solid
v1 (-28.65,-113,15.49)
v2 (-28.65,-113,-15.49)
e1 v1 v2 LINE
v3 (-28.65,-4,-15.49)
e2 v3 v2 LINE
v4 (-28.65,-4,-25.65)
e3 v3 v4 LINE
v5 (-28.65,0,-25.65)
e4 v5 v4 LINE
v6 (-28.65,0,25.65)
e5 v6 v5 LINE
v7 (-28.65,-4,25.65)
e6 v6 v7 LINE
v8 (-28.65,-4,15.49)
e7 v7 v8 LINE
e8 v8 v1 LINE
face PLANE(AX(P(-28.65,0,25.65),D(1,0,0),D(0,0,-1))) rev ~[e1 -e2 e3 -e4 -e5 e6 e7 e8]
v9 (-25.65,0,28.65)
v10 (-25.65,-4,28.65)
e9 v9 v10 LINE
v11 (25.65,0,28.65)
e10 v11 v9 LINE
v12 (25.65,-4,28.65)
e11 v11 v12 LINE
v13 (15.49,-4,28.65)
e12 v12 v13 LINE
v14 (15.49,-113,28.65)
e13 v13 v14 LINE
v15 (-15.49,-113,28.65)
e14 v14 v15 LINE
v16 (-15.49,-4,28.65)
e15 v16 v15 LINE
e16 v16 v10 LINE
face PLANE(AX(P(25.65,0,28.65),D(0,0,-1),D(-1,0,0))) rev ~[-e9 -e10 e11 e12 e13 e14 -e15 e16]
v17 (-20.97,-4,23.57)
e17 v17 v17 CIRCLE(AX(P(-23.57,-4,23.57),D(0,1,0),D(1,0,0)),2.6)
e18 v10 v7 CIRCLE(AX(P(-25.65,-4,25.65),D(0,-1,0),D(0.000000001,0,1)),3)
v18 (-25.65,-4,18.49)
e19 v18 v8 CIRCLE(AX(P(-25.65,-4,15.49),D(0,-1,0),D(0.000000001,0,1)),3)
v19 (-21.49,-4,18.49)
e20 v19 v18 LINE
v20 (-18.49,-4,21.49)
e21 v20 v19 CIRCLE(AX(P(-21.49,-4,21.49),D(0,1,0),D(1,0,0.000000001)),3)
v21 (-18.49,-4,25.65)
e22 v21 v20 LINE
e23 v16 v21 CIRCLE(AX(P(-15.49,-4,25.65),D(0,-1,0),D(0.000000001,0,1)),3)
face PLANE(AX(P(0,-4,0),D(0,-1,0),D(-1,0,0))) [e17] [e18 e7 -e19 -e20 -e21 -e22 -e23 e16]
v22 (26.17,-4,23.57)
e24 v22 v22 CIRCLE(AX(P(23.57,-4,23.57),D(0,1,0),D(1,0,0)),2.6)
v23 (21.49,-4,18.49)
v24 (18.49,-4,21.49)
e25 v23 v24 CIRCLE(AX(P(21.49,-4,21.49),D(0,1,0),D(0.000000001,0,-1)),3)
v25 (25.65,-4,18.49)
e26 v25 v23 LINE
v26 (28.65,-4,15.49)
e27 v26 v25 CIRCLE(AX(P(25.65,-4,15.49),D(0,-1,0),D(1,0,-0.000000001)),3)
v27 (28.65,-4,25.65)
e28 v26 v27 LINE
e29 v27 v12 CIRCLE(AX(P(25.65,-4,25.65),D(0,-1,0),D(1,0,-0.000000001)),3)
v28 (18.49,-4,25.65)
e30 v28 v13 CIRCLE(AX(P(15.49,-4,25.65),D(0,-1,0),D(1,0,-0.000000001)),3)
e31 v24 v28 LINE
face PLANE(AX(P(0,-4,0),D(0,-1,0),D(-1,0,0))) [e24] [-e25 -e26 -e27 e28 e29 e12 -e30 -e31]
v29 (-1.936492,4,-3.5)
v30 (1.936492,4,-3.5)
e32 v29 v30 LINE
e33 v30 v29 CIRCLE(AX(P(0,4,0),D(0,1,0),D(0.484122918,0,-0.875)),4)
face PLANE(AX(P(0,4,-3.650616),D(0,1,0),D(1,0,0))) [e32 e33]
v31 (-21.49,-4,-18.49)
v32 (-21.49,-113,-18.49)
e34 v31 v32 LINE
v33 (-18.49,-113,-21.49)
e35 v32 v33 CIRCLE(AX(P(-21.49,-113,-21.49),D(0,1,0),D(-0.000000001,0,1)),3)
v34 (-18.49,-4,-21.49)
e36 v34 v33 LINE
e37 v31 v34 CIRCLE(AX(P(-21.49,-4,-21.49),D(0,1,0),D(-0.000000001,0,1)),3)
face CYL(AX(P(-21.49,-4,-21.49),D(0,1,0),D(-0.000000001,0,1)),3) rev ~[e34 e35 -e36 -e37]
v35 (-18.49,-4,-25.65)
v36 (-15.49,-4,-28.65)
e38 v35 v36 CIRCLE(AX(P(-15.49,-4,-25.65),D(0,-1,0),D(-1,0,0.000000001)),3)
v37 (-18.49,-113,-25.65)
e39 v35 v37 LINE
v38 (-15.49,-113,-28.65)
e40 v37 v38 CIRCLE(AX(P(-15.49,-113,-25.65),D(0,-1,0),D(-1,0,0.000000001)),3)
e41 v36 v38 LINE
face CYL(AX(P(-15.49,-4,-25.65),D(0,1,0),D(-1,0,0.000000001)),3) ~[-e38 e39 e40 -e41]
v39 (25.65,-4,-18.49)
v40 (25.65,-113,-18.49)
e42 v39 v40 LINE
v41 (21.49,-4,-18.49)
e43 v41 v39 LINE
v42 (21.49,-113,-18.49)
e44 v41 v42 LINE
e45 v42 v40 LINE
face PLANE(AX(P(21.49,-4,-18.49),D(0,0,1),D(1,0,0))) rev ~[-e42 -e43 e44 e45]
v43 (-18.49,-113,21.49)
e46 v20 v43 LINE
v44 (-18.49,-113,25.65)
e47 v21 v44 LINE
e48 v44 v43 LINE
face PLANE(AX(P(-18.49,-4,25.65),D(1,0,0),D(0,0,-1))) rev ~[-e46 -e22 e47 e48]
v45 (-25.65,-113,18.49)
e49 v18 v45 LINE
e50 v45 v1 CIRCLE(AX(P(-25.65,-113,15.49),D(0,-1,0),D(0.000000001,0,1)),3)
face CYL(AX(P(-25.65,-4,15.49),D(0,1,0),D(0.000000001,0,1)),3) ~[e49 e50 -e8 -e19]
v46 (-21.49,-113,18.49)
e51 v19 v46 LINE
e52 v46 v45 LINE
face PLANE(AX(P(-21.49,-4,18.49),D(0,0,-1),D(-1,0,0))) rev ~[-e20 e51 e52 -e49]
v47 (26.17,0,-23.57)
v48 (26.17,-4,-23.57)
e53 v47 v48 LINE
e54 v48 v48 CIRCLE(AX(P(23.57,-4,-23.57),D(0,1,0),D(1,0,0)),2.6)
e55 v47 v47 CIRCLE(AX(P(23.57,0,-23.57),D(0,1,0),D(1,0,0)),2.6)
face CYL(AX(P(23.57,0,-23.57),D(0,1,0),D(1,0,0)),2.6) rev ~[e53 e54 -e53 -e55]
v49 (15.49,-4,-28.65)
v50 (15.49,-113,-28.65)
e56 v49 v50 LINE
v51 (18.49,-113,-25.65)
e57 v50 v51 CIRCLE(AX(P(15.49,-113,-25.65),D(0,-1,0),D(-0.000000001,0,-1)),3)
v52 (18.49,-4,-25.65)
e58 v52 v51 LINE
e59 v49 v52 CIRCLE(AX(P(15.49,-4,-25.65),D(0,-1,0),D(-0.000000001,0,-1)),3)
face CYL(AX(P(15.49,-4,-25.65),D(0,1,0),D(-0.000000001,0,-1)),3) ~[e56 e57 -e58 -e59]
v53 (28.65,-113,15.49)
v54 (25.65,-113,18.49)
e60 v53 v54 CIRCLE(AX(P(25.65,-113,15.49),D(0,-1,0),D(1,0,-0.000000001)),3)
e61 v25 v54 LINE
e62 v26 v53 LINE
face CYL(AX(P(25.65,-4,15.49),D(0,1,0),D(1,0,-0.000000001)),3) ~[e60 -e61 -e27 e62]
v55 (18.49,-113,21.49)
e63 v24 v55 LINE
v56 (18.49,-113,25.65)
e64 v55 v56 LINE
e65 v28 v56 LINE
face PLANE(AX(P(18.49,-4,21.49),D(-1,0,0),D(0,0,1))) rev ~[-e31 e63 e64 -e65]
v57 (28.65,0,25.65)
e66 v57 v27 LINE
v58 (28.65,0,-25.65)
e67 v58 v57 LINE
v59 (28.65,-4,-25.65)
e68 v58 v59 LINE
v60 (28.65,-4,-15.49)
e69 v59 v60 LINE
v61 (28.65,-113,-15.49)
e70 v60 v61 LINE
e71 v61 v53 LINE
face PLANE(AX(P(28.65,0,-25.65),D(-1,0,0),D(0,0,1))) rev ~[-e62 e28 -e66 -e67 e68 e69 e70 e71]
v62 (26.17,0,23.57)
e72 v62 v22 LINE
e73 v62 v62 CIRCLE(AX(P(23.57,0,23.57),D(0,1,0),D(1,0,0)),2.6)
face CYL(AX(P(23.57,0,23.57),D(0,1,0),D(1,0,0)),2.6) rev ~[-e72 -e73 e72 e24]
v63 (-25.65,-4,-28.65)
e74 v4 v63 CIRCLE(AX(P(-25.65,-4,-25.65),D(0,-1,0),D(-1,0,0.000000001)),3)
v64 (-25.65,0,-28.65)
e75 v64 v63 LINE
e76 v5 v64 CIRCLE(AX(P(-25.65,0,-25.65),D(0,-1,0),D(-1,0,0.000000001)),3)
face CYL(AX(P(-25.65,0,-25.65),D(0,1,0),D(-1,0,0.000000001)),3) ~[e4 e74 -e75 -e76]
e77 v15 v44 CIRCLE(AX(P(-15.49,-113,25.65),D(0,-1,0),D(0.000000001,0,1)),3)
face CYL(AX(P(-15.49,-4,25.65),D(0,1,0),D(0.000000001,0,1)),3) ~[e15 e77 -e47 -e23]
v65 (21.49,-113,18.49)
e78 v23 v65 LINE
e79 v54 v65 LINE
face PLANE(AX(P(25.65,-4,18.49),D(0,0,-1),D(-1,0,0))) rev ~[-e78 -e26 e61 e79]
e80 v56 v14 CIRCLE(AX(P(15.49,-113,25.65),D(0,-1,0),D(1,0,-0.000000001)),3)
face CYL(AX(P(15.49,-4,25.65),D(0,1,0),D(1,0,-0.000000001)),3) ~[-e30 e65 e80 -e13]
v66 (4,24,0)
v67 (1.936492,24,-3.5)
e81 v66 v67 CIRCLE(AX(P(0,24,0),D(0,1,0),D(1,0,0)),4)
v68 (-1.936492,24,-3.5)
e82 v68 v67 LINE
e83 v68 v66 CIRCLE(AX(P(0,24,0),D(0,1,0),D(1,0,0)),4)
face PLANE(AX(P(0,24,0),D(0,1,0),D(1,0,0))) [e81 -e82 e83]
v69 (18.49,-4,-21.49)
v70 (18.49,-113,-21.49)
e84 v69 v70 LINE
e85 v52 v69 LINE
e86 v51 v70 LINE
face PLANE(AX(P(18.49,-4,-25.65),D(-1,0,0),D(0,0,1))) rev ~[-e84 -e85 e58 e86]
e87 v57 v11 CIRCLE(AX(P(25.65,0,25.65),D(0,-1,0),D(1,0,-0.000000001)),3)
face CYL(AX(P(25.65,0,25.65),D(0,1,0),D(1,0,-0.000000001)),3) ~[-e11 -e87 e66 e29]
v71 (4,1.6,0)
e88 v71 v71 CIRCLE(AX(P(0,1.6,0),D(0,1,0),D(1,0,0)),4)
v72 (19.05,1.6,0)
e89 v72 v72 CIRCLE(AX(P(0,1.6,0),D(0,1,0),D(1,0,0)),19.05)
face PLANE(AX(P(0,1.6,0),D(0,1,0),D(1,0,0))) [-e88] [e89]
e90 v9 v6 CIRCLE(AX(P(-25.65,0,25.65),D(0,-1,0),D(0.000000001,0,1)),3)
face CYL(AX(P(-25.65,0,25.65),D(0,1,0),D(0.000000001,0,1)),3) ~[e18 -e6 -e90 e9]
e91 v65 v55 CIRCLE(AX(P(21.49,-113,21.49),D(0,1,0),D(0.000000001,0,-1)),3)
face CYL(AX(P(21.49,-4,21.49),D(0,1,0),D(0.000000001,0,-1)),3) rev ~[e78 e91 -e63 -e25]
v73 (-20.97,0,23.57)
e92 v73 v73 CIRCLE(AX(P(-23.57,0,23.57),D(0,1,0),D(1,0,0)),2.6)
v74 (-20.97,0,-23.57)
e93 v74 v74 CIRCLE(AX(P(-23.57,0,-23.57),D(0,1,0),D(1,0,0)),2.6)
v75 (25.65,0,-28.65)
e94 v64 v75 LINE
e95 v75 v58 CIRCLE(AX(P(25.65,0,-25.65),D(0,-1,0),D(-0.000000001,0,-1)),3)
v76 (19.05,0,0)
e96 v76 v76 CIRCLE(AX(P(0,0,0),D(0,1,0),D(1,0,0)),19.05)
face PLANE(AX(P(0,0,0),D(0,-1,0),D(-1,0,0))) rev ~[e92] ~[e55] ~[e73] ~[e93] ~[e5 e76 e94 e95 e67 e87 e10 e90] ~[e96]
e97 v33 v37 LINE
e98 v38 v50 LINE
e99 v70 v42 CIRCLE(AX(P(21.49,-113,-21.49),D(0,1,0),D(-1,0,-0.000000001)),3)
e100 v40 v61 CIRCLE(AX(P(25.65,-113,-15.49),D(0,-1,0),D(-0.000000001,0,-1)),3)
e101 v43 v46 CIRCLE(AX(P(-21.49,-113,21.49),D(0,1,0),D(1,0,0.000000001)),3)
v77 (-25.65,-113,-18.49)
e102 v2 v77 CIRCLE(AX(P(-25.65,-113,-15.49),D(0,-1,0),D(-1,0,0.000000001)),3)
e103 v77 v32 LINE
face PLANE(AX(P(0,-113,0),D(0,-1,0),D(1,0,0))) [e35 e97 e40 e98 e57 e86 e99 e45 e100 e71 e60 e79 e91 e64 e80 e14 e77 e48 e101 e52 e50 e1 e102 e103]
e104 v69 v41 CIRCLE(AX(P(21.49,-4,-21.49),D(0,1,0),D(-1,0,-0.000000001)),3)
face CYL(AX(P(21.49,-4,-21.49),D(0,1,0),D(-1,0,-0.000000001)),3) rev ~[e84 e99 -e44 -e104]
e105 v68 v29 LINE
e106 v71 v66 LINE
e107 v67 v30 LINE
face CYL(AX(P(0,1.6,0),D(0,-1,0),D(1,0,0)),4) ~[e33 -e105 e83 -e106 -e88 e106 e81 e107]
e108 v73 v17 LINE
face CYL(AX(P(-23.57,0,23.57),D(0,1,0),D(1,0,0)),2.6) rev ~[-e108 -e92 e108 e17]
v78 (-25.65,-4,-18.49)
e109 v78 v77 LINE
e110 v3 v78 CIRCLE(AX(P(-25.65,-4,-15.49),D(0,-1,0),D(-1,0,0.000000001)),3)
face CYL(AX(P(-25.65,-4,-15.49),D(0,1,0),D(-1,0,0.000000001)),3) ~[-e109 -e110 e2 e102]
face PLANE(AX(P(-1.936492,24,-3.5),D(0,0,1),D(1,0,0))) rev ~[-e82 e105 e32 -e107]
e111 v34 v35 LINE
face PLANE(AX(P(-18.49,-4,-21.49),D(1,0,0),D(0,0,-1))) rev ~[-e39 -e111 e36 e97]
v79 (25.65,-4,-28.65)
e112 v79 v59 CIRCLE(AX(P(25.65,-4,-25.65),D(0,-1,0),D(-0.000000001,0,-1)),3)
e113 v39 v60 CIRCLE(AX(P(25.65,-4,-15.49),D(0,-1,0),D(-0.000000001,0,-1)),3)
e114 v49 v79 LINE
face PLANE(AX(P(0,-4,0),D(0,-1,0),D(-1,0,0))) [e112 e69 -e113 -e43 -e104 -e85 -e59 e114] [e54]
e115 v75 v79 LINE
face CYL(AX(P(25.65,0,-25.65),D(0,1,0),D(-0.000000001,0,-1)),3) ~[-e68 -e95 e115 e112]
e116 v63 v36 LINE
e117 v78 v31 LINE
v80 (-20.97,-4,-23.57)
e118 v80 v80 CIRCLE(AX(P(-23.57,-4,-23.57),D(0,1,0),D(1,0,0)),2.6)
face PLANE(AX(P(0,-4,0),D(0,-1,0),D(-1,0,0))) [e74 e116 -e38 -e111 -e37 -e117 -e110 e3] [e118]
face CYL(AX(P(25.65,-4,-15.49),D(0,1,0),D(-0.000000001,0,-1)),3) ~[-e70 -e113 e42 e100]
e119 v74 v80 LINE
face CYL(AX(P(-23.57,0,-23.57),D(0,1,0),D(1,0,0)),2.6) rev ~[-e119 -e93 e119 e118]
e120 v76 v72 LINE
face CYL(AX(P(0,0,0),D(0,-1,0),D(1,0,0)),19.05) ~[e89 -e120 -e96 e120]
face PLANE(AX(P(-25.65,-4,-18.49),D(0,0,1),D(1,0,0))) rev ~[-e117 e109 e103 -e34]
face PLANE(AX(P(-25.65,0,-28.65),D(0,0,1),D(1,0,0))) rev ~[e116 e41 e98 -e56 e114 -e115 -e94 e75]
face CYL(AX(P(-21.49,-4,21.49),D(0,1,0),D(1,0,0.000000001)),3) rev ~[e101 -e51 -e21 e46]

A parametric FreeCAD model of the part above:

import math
import FreeCAD as App
import Part
import Sketcher

V = App.Vector
Q = App.Units.Quantity

doc = App.newDocument("Part")
body = doc.addObject("PartDesign::Body", "Body")

sketch1 = body.newObject("Sketcher::SketchObject", "Sketch")
sketch1.AttachmentSupport = (doc.getObject("XZ_Plane"), [""])
sketch1.MapMode = "FlatFace"
sketch1.addGeometry([
    Part.LineSegment(V(-25.65, 28.65, 0), V(25.65, 28.65, 0)),
    Part.ArcOfCircle(Part.Circle(V(25.65, 25.65, 0), V(0, 0, 1), 3), math.radians(0), math.radians(90)),
    Part.LineSegment(V(28.65, 25.65, 0), V(28.65, -25.65, 0)),
    Part.ArcOfCircle(Part.Circle(V(25.65, -25.65, 0), V(0, 0, 1), 3), math.radians(-90), math.radians(0)),
    Part.LineSegment(V(25.65, -28.65, 0), V(-25.65, -28.65, 0)),
    Part.ArcOfCircle(Part.Circle(V(-25.65, -25.65, 0), V(0, 0, 1), 3), math.radians(180), math.radians(270)),
    Part.LineSegment(V(-28.65, -25.65, 0), V(-28.65, 25.65, 0)),
    Part.ArcOfCircle(Part.Circle(V(-25.65, 25.65, 0), V(0, 0, 1), 3), math.radians(90), math.radians(180)),
    Part.Circle(V(23.57, 23.57, 0), V(0, 0, 1), 2.6),
    Part.Circle(V(-23.57, 23.57, 0), V(0, 0, 1), 2.6),
    Part.Circle(V(23.57, -23.57, 0), V(0, 0, 1), 2.6),
    Part.Circle(V(-23.57, -23.57, 0), V(0, 0, 1), 2.6),
], False)
sketch1.addConstraint([
    Sketcher.Constraint("Tangent", 0, 2, 1, 2),
    Sketcher.Constraint("Tangent", 1, 1, 2, 1),
    Sketcher.Constraint("Tangent", 2, 2, 3, 2),
    Sketcher.Constraint("Tangent", 3, 1, 4, 1),
    Sketcher.Constraint("Tangent", 4, 2, 5, 2),
    Sketcher.Constraint("Tangent", 5, 1, 6, 1),
    Sketcher.Constraint("Tangent", 6, 2, 7, 2),
    Sketcher.Constraint("Tangent", 7, 1, 0, 1),
    Sketcher.Constraint("Horizontal", 0),
    Sketcher.Constraint("Vertical", 2),
    Sketcher.Constraint("Horizontal", 4),
    Sketcher.Constraint("Vertical", 6),
    Sketcher.Constraint("Equal", 1, 3),
    Sketcher.Constraint("Equal", 3, 5),
    Sketcher.Constraint("Equal", 5, 7),
    Sketcher.Constraint("Equal", 8, 9),
    Sketcher.Constraint("Equal", 9, 10),
    Sketcher.Constraint("Equal", 10, 11),
    Sketcher.Constraint("Symmetric", 1, 3, 5, 3, -1, 1),
    Sketcher.Constraint("Symmetric", 9, 3, 10, 3, -1, 1),
    Sketcher.Constraint("Symmetric", 8, 3, 11, 3, -1, 1),
    Sketcher.Constraint("Symmetric", 8, 3, 9, 3, -2),
    Sketcher.Constraint("Equal", 4, 2),
    Sketcher.Constraint("Radius", 1, Q("3 mm")),
    Sketcher.Constraint("Diameter", 8, Q("5.2 mm")),
    Sketcher.Constraint("DistanceX", 0, 1, 0, 2, Q("51.3 mm")),
    Sketcher.Constraint("DistanceX", -1, 1, 8, 3, Q("23.57 mm")),
    Sketcher.Constraint("DistanceY", -1, 1, 8, 3, Q("23.57 mm")),
])
pad1 = body.newObject("PartDesign::Pad", "Pad")
pad1.Profile = sketch1
pad1.Length = 4

sketch2 = body.newObject("Sketcher::SketchObject", "Sketch001")
sketch2.AttachmentSupport = (doc.getObject("XZ_Plane"), [""])
sketch2.MapMode = "FlatFace"
sketch2.addGeometry(Part.Circle(V(0, 0, 0), V(0, 0, 1), 19.05), False)
sketch2.addConstraint([
    Sketcher.Constraint("Coincident", 0, 3, -1, 1),
    Sketcher.Constraint("Diameter", 0, Q("38.1 mm")),
])
pad2 = body.newObject("PartDesign::Pad", "Pad001")
pad2.Profile = sketch2
pad2.Length = 1.6
pad2.Reversed = True

sketch3 = body.newObject("Sketcher::SketchObject", "Sketch002")
sketch3.AttachmentSupport = (doc.getObject("XZ_Plane"), [""])
sketch3.MapMode = "FlatFace"
sketch3.AttachmentOffset = App.Placement(V(0, 0, -1.6), App.Rotation())
sketch3.addGeometry(Part.Circle(V(0, 0, 0), V(0, 0, 1), 4), False)
sketch3.addConstraint([
    Sketcher.Constraint("Coincident", 0, 3, -1, 1),
    Sketcher.Constraint("Diameter", 0, Q("8 mm")),
])
pad3 = body.newObject("PartDesign::Pad", "Pad002")
pad3.Profile = sketch3
pad3.Length = 22.4
pad3.Reversed = True

sketch4 = body.newObject("Sketcher::SketchObject", "Sketch003")
sketch4.AttachmentSupport = (doc.getObject("XZ_Plane"), [""])
sketch4.MapMode = "FlatFace"
sketch4.AttachmentOffset = App.Placement(V(0, 0, -24), App.Rotation())
sketch4.addGeometry([
    Part.LineSegment(V(-1.936492, -3.5, 0), V(1.936492, -3.5, 0)),
    Part.ArcOfCircle(Part.Circle(V(0, 0, 0), V(0, 0, 1), 4), math.radians(-118.955024), math.radians(-61.044976)),
], False)
sketch4.addConstraint([
    Sketcher.Constraint("Coincident", 0, 1, 1, 1),
    Sketcher.Constraint("Coincident", 1, 2, 0, 2),
    Sketcher.Constraint("Horizontal", 0),
    Sketcher.Constraint("Coincident", 1, 3, -1, 1),
    Sketcher.Constraint("Radius", 1, Q("4 mm")),
    Sketcher.Constraint("DistanceY", 0, 1, -1, 1, Q("3.5 mm")),
])
pocket1 = body.newObject("PartDesign::Pocket", "Pocket")
pocket1.Profile = sketch4
pocket1.Length = 20
pocket1.Reversed = True

sketch5 = body.newObject("Sketcher::SketchObject", "Sketch004")
sketch5.AttachmentSupport = (doc.getObject("XZ_Plane"), [""])
sketch5.MapMode = "FlatFace"
sketch5.AttachmentOffset = App.Placement(V(0, 0, 4), App.Rotation())
sketch5.addGeometry([
    Part.LineSegment(V(-18.49, 25.65, 0), V(-18.49, 21.49, 0)),
    Part.ArcOfCircle(Part.Circle(V(-21.49, 21.49, 0), V(0, 0, 1), 3), math.radians(-90), math.radians(0)),
    Part.LineSegment(V(-21.49, 18.49, 0), V(-25.65, 18.49, 0)),
    Part.ArcOfCircle(Part.Circle(V(-25.65, 15.49, 0), V(0, 0, 1), 3), math.radians(90), math.radians(180)),
    Part.LineSegment(V(-28.65, 15.49, 0), V(-28.65, -15.49, 0)),
    Part.ArcOfCircle(Part.Circle(V(-25.65, -15.49, 0), V(0, 0, 1), 3), math.radians(180), math.radians(270)),
    Part.LineSegment(V(-25.65, -18.49, 0), V(-21.49, -18.49, 0)),
    Part.ArcOfCircle(Part.Circle(V(-21.49, -21.49, 0), V(0, 0, 1), 3), math.radians(0), math.radians(90)),
    Part.LineSegment(V(-18.49, -21.49, 0), V(-18.49, -25.65, 0)),
    Part.ArcOfCircle(Part.Circle(V(-15.49, -25.65, 0), V(0, 0, 1), 3), math.radians(180), math.radians(270)),
    Part.LineSegment(V(-15.49, -28.65, 0), V(15.49, -28.65, 0)),
    Part.ArcOfCircle(Part.Circle(V(15.49, -25.65, 0), V(0, 0, 1), 3), math.radians(-90), math.radians(0)),
    Part.LineSegment(V(18.49, -25.65, 0), V(18.49, -21.49, 0)),
    Part.ArcOfCircle(Part.Circle(V(21.49, -21.49, 0), V(0, 0, 1), 3), math.radians(90), math.radians(180)),
    Part.LineSegment(V(21.49, -18.49, 0), V(25.65, -18.49, 0)),
    Part.ArcOfCircle(Part.Circle(V(25.65, -15.49, 0), V(0, 0, 1), 3), math.radians(-90), math.radians(0)),
    Part.LineSegment(V(28.65, -15.49, 0), V(28.65, 15.49, 0)),
    Part.ArcOfCircle(Part.Circle(V(25.65, 15.49, 0), V(0, 0, 1), 3), math.radians(0), math.radians(90)),
    Part.LineSegment(V(25.65, 18.49, 0), V(21.49, 18.49, 0)),
    Part.ArcOfCircle(Part.Circle(V(21.49, 21.49, 0), V(0, 0, 1), 3), math.radians(180), math.radians(270)),
    Part.LineSegment(V(18.49, 21.49, 0), V(18.49, 25.65, 0)),
    Part.ArcOfCircle(Part.Circle(V(15.49, 25.65, 0), V(0, 0, 1), 3), math.radians(0), math.radians(90)),
    Part.LineSegment(V(15.49, 28.65, 0), V(-15.49, 28.65, 0)),
    Part.ArcOfCircle(Part.Circle(V(-15.49, 25.65, 0), V(0, 0, 1), 3), math.radians(90), math.radians(180)),
], False)
sketch5.addConstraint([
    Sketcher.Constraint("Tangent", 0, 2, 1, 2),
    Sketcher.Constraint("Tangent", 1, 1, 2, 1),
    Sketcher.Constraint("Tangent", 2, 2, 3, 1),
    Sketcher.Constraint("Tangent", 3, 2, 4, 1),
    Sketcher.Constraint("Tangent", 4, 2, 5, 1),
    Sketcher.Constraint("Tangent", 5, 2, 6, 1),
    Sketcher.Constraint("Tangent", 6, 2, 7, 2),
    Sketcher.Constraint("Tangent", 7, 1, 8, 1),
    Sketcher.Constraint("Tangent", 8, 2, 9, 1),
    Sketcher.Constraint("Tangent", 9, 2, 10, 1),
    Sketcher.Constraint("Tangent", 10, 2, 11, 1),
    Sketcher.Constraint("Tangent", 11, 2, 12, 1),
    Sketcher.Constraint("Tangent", 12, 2, 13, 2),
    Sketcher.Constraint("Tangent", 13, 1, 14, 1),
    Sketcher.Constraint("Tangent", 14, 2, 15, 1),
    Sketcher.Constraint("Tangent", 15, 2, 16, 1),
    Sketcher.Constraint("Tangent", 16, 2, 17, 1),
    Sketcher.Constraint("Tangent", 17, 2, 18, 1),
    Sketcher.Constraint("Tangent", 18, 2, 19, 2),
    Sketcher.Constraint("Tangent", 19, 1, 20, 1),
    Sketcher.Constraint("Tangent", 20, 2, 21, 1),
    Sketcher.Constraint("Tangent", 21, 2, 22, 1),
    Sketcher.Constraint("Tangent", 22, 2, 23, 1),
    Sketcher.Constraint("Tangent", 23, 2, 0, 1),
    Sketcher.Constraint("Vertical", 0),
    Sketcher.Constraint("Horizontal", 2),
    Sketcher.Constraint("Vertical", 4),
    Sketcher.Constraint("Horizontal", 6),
    Sketcher.Constraint("Vertical", 8),
    Sketcher.Constraint("Horizontal", 10),
    Sketcher.Constraint("Vertical", 12),
    Sketcher.Constraint("Horizontal", 14),
    Sketcher.Constraint("Vertical", 16),
    Sketcher.Constraint("Horizontal", 18),
    Sketcher.Constraint("Vertical", 20),
    Sketcher.Constraint("Horizontal", 22),
    Sketcher.Constraint("Equal", 1, 3),
    Sketcher.Constraint("Equal", 3, 5),
    Sketcher.Constraint("Equal", 5, 7),
    Sketcher.Constraint("Equal", 7, 9),
    Sketcher.Constraint("Equal", 9, 11),
    Sketcher.Constraint("Equal", 11, 13),
    Sketcher.Constraint("Equal", 13, 15),
    Sketcher.Constraint("Equal", 15, 17),
    Sketcher.Constraint("Equal", 17, 19),
    Sketcher.Constraint("Equal", 19, 21),
    Sketcher.Constraint("Equal", 21, 23),
    Sketcher.Constraint("Symmetric", 1, 3, 13, 3, -1, 1),
    Sketcher.Constraint("Symmetric", 5, 3, 17, 3, -1, 1),
    Sketcher.Constraint("Symmetric", 9, 3, 21, 3, -1, 1),
    Sketcher.Constraint("Symmetric", 7, 3, 13, 3, -2),
    Sketcher.Constraint("Equal", 18, 0),
    Sketcher.Constraint("Equal", 22, 4),
    Sketcher.Constraint("Radius", 1, Q("3 mm")),
    Sketcher.Constraint("DistanceX", 2, 2, 2, 1, Q("4.16 mm")),
    Sketcher.Constraint("DistanceX", 10, 1, 10, 2, Q("30.98 mm")),
])
pad4 = body.newObject("PartDesign::Pad", "Pad003")
pad4.Profile = sketch5
pad4.Length = 109

doc.recompute()
